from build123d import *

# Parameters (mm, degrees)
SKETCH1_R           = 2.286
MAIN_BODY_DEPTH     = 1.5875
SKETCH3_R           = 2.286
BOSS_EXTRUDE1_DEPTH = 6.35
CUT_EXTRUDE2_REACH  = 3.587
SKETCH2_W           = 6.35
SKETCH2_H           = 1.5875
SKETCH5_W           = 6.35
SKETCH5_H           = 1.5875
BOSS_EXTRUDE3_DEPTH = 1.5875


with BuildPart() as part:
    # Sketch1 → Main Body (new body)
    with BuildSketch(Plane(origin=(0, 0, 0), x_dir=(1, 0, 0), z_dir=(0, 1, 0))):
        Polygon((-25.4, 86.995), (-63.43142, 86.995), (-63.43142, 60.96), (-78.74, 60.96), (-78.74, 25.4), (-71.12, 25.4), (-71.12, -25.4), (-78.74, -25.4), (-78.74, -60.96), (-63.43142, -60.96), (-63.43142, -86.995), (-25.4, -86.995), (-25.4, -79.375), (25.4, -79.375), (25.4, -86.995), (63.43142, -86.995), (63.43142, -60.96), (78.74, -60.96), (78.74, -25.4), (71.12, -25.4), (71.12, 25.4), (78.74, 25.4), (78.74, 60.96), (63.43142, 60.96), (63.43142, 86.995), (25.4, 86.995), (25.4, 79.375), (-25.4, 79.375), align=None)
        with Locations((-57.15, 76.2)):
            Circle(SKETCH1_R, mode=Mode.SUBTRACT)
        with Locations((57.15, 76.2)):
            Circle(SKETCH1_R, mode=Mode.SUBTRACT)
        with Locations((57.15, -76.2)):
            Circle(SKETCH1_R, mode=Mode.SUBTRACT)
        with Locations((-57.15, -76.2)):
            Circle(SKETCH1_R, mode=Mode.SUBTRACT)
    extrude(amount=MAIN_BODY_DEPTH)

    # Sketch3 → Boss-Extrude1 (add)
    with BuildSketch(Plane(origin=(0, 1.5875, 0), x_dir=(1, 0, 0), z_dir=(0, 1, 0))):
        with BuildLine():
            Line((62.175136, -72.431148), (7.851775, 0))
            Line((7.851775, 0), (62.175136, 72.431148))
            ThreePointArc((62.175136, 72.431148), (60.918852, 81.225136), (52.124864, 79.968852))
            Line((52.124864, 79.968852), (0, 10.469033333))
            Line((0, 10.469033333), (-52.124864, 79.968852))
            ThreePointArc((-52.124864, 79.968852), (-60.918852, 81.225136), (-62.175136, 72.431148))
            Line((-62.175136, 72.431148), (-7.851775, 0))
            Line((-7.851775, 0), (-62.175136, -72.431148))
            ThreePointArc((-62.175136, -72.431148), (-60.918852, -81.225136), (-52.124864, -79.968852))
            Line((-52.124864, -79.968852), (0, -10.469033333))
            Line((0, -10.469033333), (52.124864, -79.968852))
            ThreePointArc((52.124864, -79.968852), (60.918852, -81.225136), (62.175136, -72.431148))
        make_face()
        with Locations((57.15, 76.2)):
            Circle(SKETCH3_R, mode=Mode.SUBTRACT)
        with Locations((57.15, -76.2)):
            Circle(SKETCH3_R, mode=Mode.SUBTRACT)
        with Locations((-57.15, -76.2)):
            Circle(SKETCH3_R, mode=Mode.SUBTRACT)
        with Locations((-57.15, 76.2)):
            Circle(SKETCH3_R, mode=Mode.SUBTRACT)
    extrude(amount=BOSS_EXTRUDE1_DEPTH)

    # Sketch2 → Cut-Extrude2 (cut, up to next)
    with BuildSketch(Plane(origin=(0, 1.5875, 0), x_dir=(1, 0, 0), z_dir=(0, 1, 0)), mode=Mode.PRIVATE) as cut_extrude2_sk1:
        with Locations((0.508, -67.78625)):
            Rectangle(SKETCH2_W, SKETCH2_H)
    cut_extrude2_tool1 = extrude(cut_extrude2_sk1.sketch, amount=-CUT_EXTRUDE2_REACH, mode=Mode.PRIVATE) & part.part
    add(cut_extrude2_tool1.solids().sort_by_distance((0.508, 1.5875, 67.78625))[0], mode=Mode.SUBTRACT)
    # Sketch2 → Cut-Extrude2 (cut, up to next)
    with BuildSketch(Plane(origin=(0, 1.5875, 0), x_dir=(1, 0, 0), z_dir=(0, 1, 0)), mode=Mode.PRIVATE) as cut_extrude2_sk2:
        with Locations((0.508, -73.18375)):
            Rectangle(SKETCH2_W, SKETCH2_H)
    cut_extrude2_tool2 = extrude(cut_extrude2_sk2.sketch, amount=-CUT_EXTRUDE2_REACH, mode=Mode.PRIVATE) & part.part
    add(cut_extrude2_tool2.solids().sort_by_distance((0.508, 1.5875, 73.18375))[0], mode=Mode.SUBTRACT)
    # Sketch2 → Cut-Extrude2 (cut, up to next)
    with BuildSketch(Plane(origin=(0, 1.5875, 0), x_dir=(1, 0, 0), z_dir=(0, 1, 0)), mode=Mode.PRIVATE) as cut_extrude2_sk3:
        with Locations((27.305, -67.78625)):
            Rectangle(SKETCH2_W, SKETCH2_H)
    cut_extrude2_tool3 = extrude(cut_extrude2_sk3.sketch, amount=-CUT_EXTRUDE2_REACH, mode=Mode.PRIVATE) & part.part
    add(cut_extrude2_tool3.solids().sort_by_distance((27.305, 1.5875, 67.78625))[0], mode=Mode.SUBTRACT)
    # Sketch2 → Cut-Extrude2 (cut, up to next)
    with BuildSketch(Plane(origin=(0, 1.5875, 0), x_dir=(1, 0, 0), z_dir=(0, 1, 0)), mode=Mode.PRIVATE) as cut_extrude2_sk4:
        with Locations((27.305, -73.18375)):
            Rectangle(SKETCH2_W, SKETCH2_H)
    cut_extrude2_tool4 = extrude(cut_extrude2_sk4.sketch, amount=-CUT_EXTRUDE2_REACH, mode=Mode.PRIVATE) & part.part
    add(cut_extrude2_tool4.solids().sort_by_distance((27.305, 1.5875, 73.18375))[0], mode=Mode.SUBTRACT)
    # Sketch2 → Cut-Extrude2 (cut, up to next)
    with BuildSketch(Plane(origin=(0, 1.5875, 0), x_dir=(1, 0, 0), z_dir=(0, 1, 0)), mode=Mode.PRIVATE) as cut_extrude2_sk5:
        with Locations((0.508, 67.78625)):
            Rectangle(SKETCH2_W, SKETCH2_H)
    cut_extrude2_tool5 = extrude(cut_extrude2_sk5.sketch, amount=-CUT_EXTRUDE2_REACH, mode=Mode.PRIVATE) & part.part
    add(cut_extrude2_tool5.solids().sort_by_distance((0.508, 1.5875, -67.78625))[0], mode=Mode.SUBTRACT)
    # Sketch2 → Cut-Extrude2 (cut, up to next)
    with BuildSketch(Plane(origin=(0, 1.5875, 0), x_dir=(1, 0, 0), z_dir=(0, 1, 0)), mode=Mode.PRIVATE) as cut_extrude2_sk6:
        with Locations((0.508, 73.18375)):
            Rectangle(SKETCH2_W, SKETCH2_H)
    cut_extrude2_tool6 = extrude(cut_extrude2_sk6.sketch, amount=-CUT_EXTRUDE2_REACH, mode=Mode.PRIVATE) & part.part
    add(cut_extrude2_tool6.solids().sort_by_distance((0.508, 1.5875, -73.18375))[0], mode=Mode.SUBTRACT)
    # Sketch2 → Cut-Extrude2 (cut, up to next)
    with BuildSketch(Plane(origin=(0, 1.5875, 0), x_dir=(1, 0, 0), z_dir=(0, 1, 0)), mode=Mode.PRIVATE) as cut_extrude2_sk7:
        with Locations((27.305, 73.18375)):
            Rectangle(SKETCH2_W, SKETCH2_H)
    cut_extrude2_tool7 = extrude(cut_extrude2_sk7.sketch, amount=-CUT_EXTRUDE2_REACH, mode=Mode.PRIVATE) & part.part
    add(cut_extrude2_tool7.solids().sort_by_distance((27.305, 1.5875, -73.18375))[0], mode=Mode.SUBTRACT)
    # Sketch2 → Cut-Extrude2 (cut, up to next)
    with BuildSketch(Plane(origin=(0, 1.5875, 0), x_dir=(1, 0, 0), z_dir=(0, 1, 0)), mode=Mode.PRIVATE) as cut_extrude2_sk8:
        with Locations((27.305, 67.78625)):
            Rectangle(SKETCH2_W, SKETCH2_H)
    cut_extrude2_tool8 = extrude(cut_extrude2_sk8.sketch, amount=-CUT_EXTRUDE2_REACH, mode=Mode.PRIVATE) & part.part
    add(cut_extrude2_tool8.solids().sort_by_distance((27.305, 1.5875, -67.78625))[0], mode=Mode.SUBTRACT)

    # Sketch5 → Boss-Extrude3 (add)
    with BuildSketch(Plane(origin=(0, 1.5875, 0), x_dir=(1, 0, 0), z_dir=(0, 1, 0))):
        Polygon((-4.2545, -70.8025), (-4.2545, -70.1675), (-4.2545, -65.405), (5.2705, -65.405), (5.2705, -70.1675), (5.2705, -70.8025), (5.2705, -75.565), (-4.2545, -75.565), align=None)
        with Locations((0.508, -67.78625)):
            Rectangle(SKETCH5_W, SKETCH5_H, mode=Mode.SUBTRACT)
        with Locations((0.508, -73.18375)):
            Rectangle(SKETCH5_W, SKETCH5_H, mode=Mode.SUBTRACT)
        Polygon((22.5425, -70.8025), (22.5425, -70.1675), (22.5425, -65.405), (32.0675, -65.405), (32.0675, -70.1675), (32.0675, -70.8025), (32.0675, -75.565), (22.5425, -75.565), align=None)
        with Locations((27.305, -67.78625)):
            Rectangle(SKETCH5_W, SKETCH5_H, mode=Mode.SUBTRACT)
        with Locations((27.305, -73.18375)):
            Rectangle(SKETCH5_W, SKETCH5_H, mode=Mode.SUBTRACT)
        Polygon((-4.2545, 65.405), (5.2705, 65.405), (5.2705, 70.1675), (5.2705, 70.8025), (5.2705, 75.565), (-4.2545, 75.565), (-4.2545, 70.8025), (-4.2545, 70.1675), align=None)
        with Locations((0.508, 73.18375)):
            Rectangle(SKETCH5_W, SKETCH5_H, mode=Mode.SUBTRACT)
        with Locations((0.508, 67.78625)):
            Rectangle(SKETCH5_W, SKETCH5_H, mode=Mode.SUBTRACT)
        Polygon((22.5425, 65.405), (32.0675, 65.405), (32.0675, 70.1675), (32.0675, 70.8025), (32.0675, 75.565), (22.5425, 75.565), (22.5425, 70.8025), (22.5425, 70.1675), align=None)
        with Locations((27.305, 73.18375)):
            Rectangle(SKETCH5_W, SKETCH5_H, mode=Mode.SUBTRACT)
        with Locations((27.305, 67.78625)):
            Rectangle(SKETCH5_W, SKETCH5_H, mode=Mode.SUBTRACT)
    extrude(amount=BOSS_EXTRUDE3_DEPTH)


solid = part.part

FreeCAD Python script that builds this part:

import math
import FreeCAD as App
import Part
import Sketcher
Q = App.Units.Quantity


def add_polygon(sketch, points):
    """Adds a closed chain of lines whose ends are joined by coincident constraints."""
    first, n = sketch.GeometryCount, len(points)
    for a, b in zip(points, points[1:] + points[:1]):
        sketch.addGeometry(Part.LineSegment(App.Vector(*a, 0), App.Vector(*b, 0)), False)
    for i in range(n):
        sketch.addConstraint(Sketcher.Constraint("Coincident", first + i, 2, first + (i + 1) % n, 1))

doc = App.newDocument("Part")
params = doc.addObject("Spreadsheet::Sheet", "Params")
for row, (alias, value) in enumerate([
    ("sketch1_diameter", "0.18 in"),
    ("sketch1_width", "2 in"),
    ("sketch1_width2", "0.3 in"),
    ("sketch1_height", "1.4 in"),
    ("sketch1_height2", "1.025 in"),
    ("pad1_length", "0.0625 in"),
    ("sketch2_diameter", "0.18 in"),
    ("pad2_length", "0.25 in"),
    ("sketch3_width", "0.25 in"),
    ("sketch3_height", "0.0625 in"),
    ("sketch4_width", "0.25 in"),
    ("sketch4_height", "0.0625 in"),
    ("sketch5_width", "0.25 in"),
    ("sketch5_height", "0.0625 in"),
    ("sketch6_width", "0.25 in"),
    ("sketch6_height", "0.0625 in"),
    ("sketch7_width", "0.25 in"),
    ("sketch7_height", "0.0625 in"),
    ("sketch8_width", "0.25 in"),
    ("sketch8_height", "0.0625 in"),
    ("sketch9_width", "0.25 in"),
    ("sketch9_height", "0.0625 in"),
    ("sketch10_width", "0.25 in"),
    ("sketch10_height", "0.0625 in"),
    ("sketch11_height", "0.4 in"),
    ("sketch11_width", "0.25 in"),
    ("sketch11_width2", "0.375 in"),
    ("sketch11_height2", "0.0625 in"),
    ("pad3_length", "0.0625 in"),
], start=1):
    params.set(f"A{row}", alias)
    params.set(f"B{row}", "=" + value)
    params.setAlias(f"B{row}", alias)

body = doc.addObject("PartDesign::Body", "Body")

# Sketch on XZ plane
sketch1 = body.newObject("Sketcher::SketchObject", "Sketch")
sketch1.AttachmentSupport = (doc.getObject("XZ_Plane"), [""])
sketch1.MapMode = "FlatFace"
add_polygon(sketch1, [(-25.4, -87), (-63.4, -87), (-63.4, -61), (-78.7, -61), (-78.7, -25.4), (-71.1, -25.4), (-71.1, 25.4), (-78.7, 25.4), (-78.7, 61), (-63.4, 61), (-63.4, 87), (-25.4, 87), (-25.4, 79.4), (25.4, 79.4), (25.4, 87), (63.4, 87), (63.4, 61), (78.7, 61), (78.7, 25.4), (71.1, 25.4), (71.1, -25.4), (78.7, -25.4), (78.7, -61), (63.4, -61), (63.4, -87), (25.4, -87), (25.4, -79.4), (-25.4, -79.4)])  # lines 0-27
sketch1.addGeometry(Part.Circle(App.Vector(-57.1, 76.2, 0), App.Vector(0, 0, 1), 2.3), False)  # 28
sketch1.addGeometry(Part.Circle(App.Vector(57.1, 76.2, 0), App.Vector(0, 0, 1), 2.3), False)  # 29
sketch1.addGeometry(Part.Circle(App.Vector(-57.1, -76.2, 0), App.Vector(0, 0, 1), 2.3), False)  # 30
sketch1.addGeometry(Part.Circle(App.Vector(57.1, -76.2, 0), App.Vector(0, 0, 1), 2.3), False)  # 31
sketch1.addConstraint(Sketcher.Constraint("Horizontal", 0))
sketch1.addConstraint(Sketcher.Constraint("Vertical", 1))
sketch1.addConstraint(Sketcher.Constraint("Horizontal", 2))
sketch1.addConstraint(Sketcher.Constraint("Vertical", 3))
sketch1.addConstraint(Sketcher.Constraint("Horizontal", 4))
sketch1.addConstraint(Sketcher.Constraint("Vertical", 5))
sketch1.addConstraint(Sketcher.Constraint("Horizontal", 6))
sketch1.addConstraint(Sketcher.Constraint("Vertical", 7))
sketch1.addConstraint(Sketcher.Constraint("Horizontal", 8))
sketch1.addConstraint(Sketcher.Constraint("Vertical", 9))
sketch1.addConstraint(Sketcher.Constraint("Horizontal", 10))
sketch1.addConstraint(Sketcher.Constraint("Vertical", 11))
sketch1.addConstraint(Sketcher.Constraint("Horizontal", 12))
sketch1.addConstraint(Sketcher.Constraint("Vertical", 13))
sketch1.addConstraint(Sketcher.Constraint("Horizontal", 14))
sketch1.addConstraint(Sketcher.Constraint("Vertical", 15))
sketch1.addConstraint(Sketcher.Constraint("Horizontal", 16))
sketch1.addConstraint(Sketcher.Constraint("Vertical", 17))
sketch1.addConstraint(Sketcher.Constraint("Horizontal", 18))
sketch1.addConstraint(Sketcher.Constraint("Vertical", 19))
sketch1.addConstraint(Sketcher.Constraint("Horizontal", 20))
sketch1.addConstraint(Sketcher.Constraint("Vertical", 21))
sketch1.addConstraint(Sketcher.Constraint("Horizontal", 22))
sketch1.addConstraint(Sketcher.Constraint("Vertical", 23))
sketch1.addConstraint(Sketcher.Constraint("Horizontal", 24))
sketch1.addConstraint(Sketcher.Constraint("Vertical", 25))
sketch1.addConstraint(Sketcher.Constraint("Horizontal", 26))
sketch1.addConstraint(Sketcher.Constraint("Vertical", 27))
sketch1.addConstraint(Sketcher.Constraint("Equal", 28, 29))
sketch1.addConstraint(Sketcher.Constraint("Equal", 29, 30))
sketch1.addConstraint(Sketcher.Constraint("Equal", 30, 31))
sketch1.addConstraint(Sketcher.Constraint("Symmetric", 29, 3, 30, 3, -1, 1))
sketch1.addConstraint(Sketcher.Constraint("Symmetric", 28, 3, 31, 3, -1, 1))
sketch1.addConstraint(Sketcher.Constraint("Symmetric", 0, 2, 14, 2, -1, 1))
sketch1.addConstraint(Sketcher.Constraint("Symmetric", 2, 2, 16, 2, -1, 1))
sketch1.addConstraint(Sketcher.Constraint("Symmetric", 4, 2, 18, 2, -1, 1))
sketch1.addConstraint(Sketcher.Constraint("Symmetric", 6, 2, 20, 2, -1, 1))
sketch1.addConstraint(Sketcher.Constraint("Symmetric", 8, 2, 22, 2, -1, 1))
sketch1.addConstraint(Sketcher.Constraint("Symmetric", 10, 2, 24, 2, -1, 1))
sketch1.addConstraint(Sketcher.Constraint("Symmetric", 12, 2, 26, 2, -1, 1))
sketch1.addConstraint(Sketcher.Constraint("Symmetric", 28, 3, 29, 3, -2))
sketch1.addConstraint(Sketcher.Constraint("Symmetric", 10, 2, 13, 2, -2))
sketch1.addConstraint(Sketcher.Constraint("Symmetric", 8, 2, 15, 2, -2))
sketch1.addConstraint(Sketcher.Constraint("Symmetric", 6, 2, 17, 2, -2))
sketch1.addConstraint(Sketcher.Constraint("Equal", 26, 5))
sketch1.addConstraint(Sketcher.Constraint("Equal", 20, 11))
sketch1.addConstraint(Sketcher.Constraint("Diameter", 28, Q("0.18 in")))
sketch1.addConstraint(Sketcher.Constraint("DistanceX", 12, 1, 12, 2, Q("2 in")))
sketch1.addConstraint(Sketcher.Constraint("DistanceX", 4, 1, 4, 2, Q("0.3 in")))
sketch1.addConstraint(Sketcher.Constraint("DistanceY", 3, 1, 3, 2, Q("1.4 in")))
sketch1.addConstraint(Sketcher.Constraint("DistanceY", -1, 1, 28, 3, Q("3 in")))
sketch1.addConstraint(Sketcher.Constraint("DistanceX", 2, 2, -1, 1, Q("3.1 in")))
sketch1.addConstraint(Sketcher.Constraint("DistanceX", 28, 3, 29, 3, Q("4.5 in")))
sketch1.addConstraint(Sketcher.Constraint("DistanceY", 1, 1, 1, 2, Q("1.025 in")))
sketch1.addConstraint(Sketcher.Constraint("DistanceX", 0, 2, 0, 1, Q("1.4973 in")))
sketch1.setExpression("Constraints[74]", "Params.sketch1_diameter")
sketch1.setExpression("Constraints[75]", "Params.sketch1_width")
sketch1.setExpression("Constraints[76]", "Params.sketch1_width2")
sketch1.setExpression("Constraints[77]", "Params.sketch1_height")
sketch1.setExpression("Constraints[81]", "Params.sketch1_height2")
pad1 = body.newObject("PartDesign::Pad", "Pad")
pad1.Profile = sketch1
pad1.setExpression("Length", "Params.pad1_length")
pad1.Reversed = True

# Sketch on XZ plane
sketch2 = body.newObject("Sketcher::SketchObject", "Sketch001")
sketch2.AttachmentSupport = (doc.getObject("XZ_Plane"), [""])
sketch2.MapMode = "FlatFace"
sketch2.AttachmentOffset = App.Placement(App.Vector(0, 0, -0.0625 * 25.4), App.Rotation())
sketch2.addGeometry(Part.LineSegment(App.Vector(62.2, 72.4, 0), App.Vector(7.9, 0, 0)), False)
sketch2.addGeometry(Part.LineSegment(App.Vector(7.9, 0, 0), App.Vector(62.2, -72.4, 0)), False)
sketch2.addGeometry(Part.ArcOfCircle(Part.Circle(App.Vector(57.1, -76.2, 0), App.Vector(0, 0, 1), 6.3), math.radians(-143), math.radians(37)), False)
sketch2.addGeometry(Part.LineSegment(App.Vector(52.1, -80, 0), App.Vector(0, -10.5, 0)), False)
sketch2.addGeometry(Part.LineSegment(App.Vector(0, -10.5, 0), App.Vector(-52.1, -80, 0)), False)
sketch2.addGeometry(Part.ArcOfCircle(Part.Circle(App.Vector(-57.1, -76.2, 0), App.Vector(0, 0, 1), 6.3), math.radians(143), math.radians(323)), False)
sketch2.addGeometry(Part.LineSegment(App.Vector(-62.2, -72.4, 0), App.Vector(-7.9, 0, 0)), False)
sketch2.addGeometry(Part.LineSegment(App.Vector(-7.9, 0, 0), App.Vector(-62.2, 72.4, 0)), False)
sketch2.addGeometry(Part.ArcOfCircle(Part.Circle(App.Vector(-57.1, 76.2, 0), App.Vector(0, 0, 1), 6.3), math.radians(37), math.radians(217)), False)
sketch2.addGeometry(Part.LineSegment(App.Vector(-52.1, 80, 0), App.Vector(0, 10.5, 0)), False)
sketch2.addGeometry(Part.LineSegment(App.Vector(0, 10.5, 0), App.Vector(52.1, 80, 0)), False)
sketch2.addGeometry(Part.ArcOfCircle(Part.Circle(App.Vector(57.1, 76.2, 0), App.Vector(0, 0, 1), 6.3), math.radians(-37), math.radians(143)), False)
sketch2.addGeometry(Part.Circle(App.Vector(-57.1, 76.2, 0), App.Vector(0, 0, 1), 2.3), False)
sketch2.addGeometry(Part.Circle(App.Vector(57.1, 76.2, 0), App.Vector(0, 0, 1), 2.3), False)
sketch2.addGeometry(Part.Circle(App.Vector(-57.1, -76.2, 0), App.Vector(0, 0, 1), 2.3), False)
sketch2.addGeometry(Part.Circle(App.Vector(57.1, -76.2, 0), App.Vector(0, 0, 1), 2.3), False)
sketch2.addConstraint(Sketcher.Constraint("Coincident", 0, 2, 1, 1))
sketch2.addConstraint(Sketcher.Constraint("Tangent", 1, 2, 2, 2))
sketch2.addConstraint(Sketcher.Constraint("Tangent", 2, 1, 3, 1))
sketch2.addConstraint(Sketcher.Constraint("Coincident", 3, 2, 4, 1))
sketch2.addConstraint(Sketcher.Constraint("Tangent", 4, 2, 5, 2))
sketch2.addConstraint(Sketcher.Constraint("Tangent", 5, 1, 6, 1))
sketch2.addConstraint(Sketcher.Constraint("Coincident", 6, 2, 7, 1))
sketch2.addConstraint(Sketcher.Constraint("Tangent", 7, 2, 8, 2))
sketch2.addConstraint(Sketcher.Constraint("Tangent", 8, 1, 9, 1))
sketch2.addConstraint(Sketcher.Constraint("Coincident", 9, 2, 10, 1))
sketch2.addConstraint(Sketcher.Constraint("Tangent", 10, 2, 11, 2))
sketch2.addConstraint(Sketcher.Constraint("Tangent", 11, 1, 0, 1))
sketch2.addConstraint(Sketcher.Constraint("Coincident", 12, 3, 8, 3))
sketch2.addConstraint(Sketcher.Constraint("Coincident", 13, 3, 11, 3))
sketch2.addConstraint(Sketcher.Constraint("Coincident", 14, 3, 5, 3))
sketch2.addConstraint(Sketcher.Constraint("Coincident", 15, 3, 2, 3))
sketch2.addConstraint(Sketcher.Constraint("Equal", 2, 5))
sketch2.addConstraint(Sketcher.Constraint("Equal", 5, 8))
sketch2.addConstraint(Sketcher.Constraint("Equal", 8, 11))
sketch2.addConstraint(Sketcher.Constraint("Equal", 12, 13))
sketch2.addConstraint(Sketcher.Constraint("Equal", 13, 14))
sketch2.addConstraint(Sketcher.Constraint("Equal", 14, 15))
sketch2.addConstraint(Sketcher.Constraint("Symmetric", 2, 3, 8, 3, -1, 1))
sketch2.addConstraint(Sketcher.Constraint("Symmetric", 5, 3, 11, 3, -1, 1))
sketch2.addConstraint(Sketcher.Constraint("Symmetric", 0, 2, 6, 2, -1, 1))
sketch2.addConstraint(Sketcher.Constraint("Symmetric", 3, 2, 9, 2, -1, 1))
sketch2.addConstraint(Sketcher.Constraint("Symmetric", 2, 3, 5, 3, -2))
sketch2.addConstraint(Sketcher.Constraint("PointOnObject", 0, 2, -1))
sketch2.addConstraint(Sketcher.Constraint("PointOnObject", 3, 2, -2))
sketch2.addConstraint(Sketcher.Constraint("Parallel", 1, 3))
sketch2.addConstraint(Sketcher.Constraint("Diameter", 12, Q("0.18 in")))
sketch2.addConstraint(Sketcher.Constraint("DistanceY", 2, 3, -1, 1, Q("3 in")))
sketch2.addConstraint(Sketcher.Constraint("Radius", 2, Q("0.2473 in")))
sketch2.addConstraint(Sketcher.Constraint("DistanceX", 5, 3, 2, 3, Q("4.5 in")))
sketch2.addConstraint(Sketcher.Constraint("DistanceY", 2, 1, -1, 1, 79.968852))
sketch2.setExpression("Constraints[30]", "Params.sketch2_diameter")
pad2 = body.newObject("PartDesign::Pad", "Pad001")
pad2.Profile = sketch2
pad2.setExpression("Length", "Params.pad2_length")
pad2.Reversed = True

# Sketch on XZ plane
sketch3 = body.newObject("Sketcher::SketchObject", "Sketch002")
sketch3.AttachmentSupport = (doc.getObject("XZ_Plane"), [""])
sketch3.MapMode = "FlatFace"
sketch3.AttachmentOffset = App.Placement(App.Vector(0, 0, -0.0625 * 25.4), App.Rotation())
add_polygon(sketch3, [(-2.7, 67), (-2.7, 68.6), (3.7, 68.6), (3.7, 67)])  # lines 0-3
sketch3.addConstraint(Sketcher.Constraint("Vertical", 0))
sketch3.addConstraint(Sketcher.Constraint("Horizontal", 1))
sketch3.addConstraint(Sketcher.Constraint("Vertical", 2))
sketch3.addConstraint(Sketcher.Constraint("Horizontal", 3))
sketch3.addConstraint(Sketcher.Constraint("DistanceX", 1, 1, 1, 2, Q("0.25 in")))
sketch3.addConstraint(Sketcher.Constraint("DistanceY", -1, 1, 0, 2, Q("2.7 in")))
sketch3.addConstraint(Sketcher.Constraint("DistanceY", 0, 1, 0, 2, Q("0.0625 in")))
sketch3.addConstraint(Sketcher.Constraint("DistanceX", 0, 2, -1, 1, Q("0.105 in")))
sketch3.setExpression("Constraints[8]", "Params.sketch3_width")
sketch3.setExpression("Constraints[10]", "Params.sketch3_height")
pocket1 = body.newObject("PartDesign::Pocket", "Pocket")
pocket1.Profile = sketch3
pocket1.Type = "UpToFirst"
pocket1.Reversed = True

# Sketch on XZ plane
sketch4 = body.newObject("Sketcher::SketchObject", "Sketch003")
sketch4.AttachmentSupport = (doc.getObject("XZ_Plane"), [""])
sketch4.MapMode = "FlatFace"
sketch4.AttachmentOffset = App.Placement(App.Vector(0, 0, -0.0625 * 25.4), App.Rotation())
add_polygon(sketch4, [(-2.7, 72.4), (-2.7, 74), (3.7, 74), (3.7, 72.4)])  # lines 0-3
sketch4.addConstraint(Sketcher.Constraint("Vertical", 0))
sketch4.addConstraint(Sketcher.Constraint("Horizontal", 1))
sketch4.addConstraint(Sketcher.Constraint("Vertical", 2))
sketch4.addConstraint(Sketcher.Constraint("Horizontal", 3))
sketch4.addConstraint(Sketcher.Constraint("DistanceX", 1, 1, 1, 2, Q("0.25 in")))
sketch4.addConstraint(Sketcher.Constraint("DistanceY", 0, 1, 0, 2, Q("0.0625 in")))
sketch4.addConstraint(Sketcher.Constraint("DistanceY", -1, 1, 2, 2, Q("2.85 in")))
sketch4.addConstraint(Sketcher.Constraint("DistanceX", 0, 2, -1, 1, Q("0.105 in")))
sketch4.setExpression("Constraints[8]", "Params.sketch4_width")
sketch4.setExpression("Constraints[9]", "Params.sketch4_height")
pocket2 = body.newObject("PartDesign::Pocket", "Pocket001")
pocket2.Profile = sketch4
pocket2.Type = "UpToFirst"
pocket2.Reversed = True

# Sketch on XZ plane
sketch5 = body.newObject("Sketcher::SketchObject", "Sketch004")
sketch5.AttachmentSupport = (doc.getObject("XZ_Plane"), [""])
sketch5.MapMode = "FlatFace"
sketch5.AttachmentOffset = App.Placement(App.Vector(0, 0, -0.0625 * 25.4), App.Rotation())
add_polygon(sketch5, [(24.1, 67), (24.1, 68.6), (30.5, 68.6), (30.5, 67)])  # lines 0-3
sketch5.addConstraint(Sketcher.Constraint("Vertical", 0))
sketch5.addConstraint(Sketcher.Constraint("Horizontal", 1))
sketch5.addConstraint(Sketcher.Constraint("Vertical", 2))
sketch5.addConstraint(Sketcher.Constraint("Horizontal", 3))
sketch5.addConstraint(Sketcher.Constraint("DistanceX", 1, 1, 1, 2, Q("0.25 in")))
sketch5.addConstraint(Sketcher.Constraint("DistanceY", -1, 1, 0, 2, Q("2.7 in")))
sketch5.addConstraint(Sketcher.Constraint("DistanceX", -1, 1, 1, 2, Q("1.2 in")))
sketch5.addConstraint(Sketcher.Constraint("DistanceY", 0, 1, 0, 2, Q("0.0625 in")))
sketch5.setExpression("Constraints[8]", "Params.sketch5_width")
sketch5.setExpression("Constraints[11]", "Params.sketch5_height")
pocket3 = body.newObject("PartDesign::Pocket", "Pocket002")
pocket3.Profile = sketch5
pocket3.Type = "UpToFirst"
pocket3.Reversed = True

# Sketch on XZ plane
sketch6 = body.newObject("Sketcher::SketchObject", "Sketch005")
sketch6.AttachmentSupport = (doc.getObject("XZ_Plane"), [""])
sketch6.MapMode = "FlatFace"
sketch6.AttachmentOffset = App.Placement(App.Vector(0, 0, -0.0625 * 25.4), App.Rotation())
add_polygon(sketch6, [(24.1, 72.4), (24.1, 74), (30.5, 74), (30.5, 72.4)])  # lines 0-3
sketch6.addConstraint(Sketcher.Constraint("Vertical", 0))
sketch6.addConstraint(Sketcher.Constraint("Horizontal", 1))
sketch6.addConstraint(Sketcher.Constraint("Vertical", 2))
sketch6.addConstraint(Sketcher.Constraint("Horizontal", 3))
sketch6.addConstraint(Sketcher.Constraint("DistanceX", 1, 1, 1, 2, Q("0.25 in")))
sketch6.addConstraint(Sketcher.Constraint("DistanceX", -1, 1, 1, 2, Q("1.2 in")))
sketch6.addConstraint(Sketcher.Constraint("DistanceY", 0, 1, 0, 2, Q("0.0625 in")))
sketch6.addConstraint(Sketcher.Constraint("DistanceY", -1, 1, 2, 2, Q("2.85 in")))
sketch6.setExpression("Constraints[8]", "Params.sketch6_width")
sketch6.setExpression("Constraints[10]", "Params.sketch6_height")
pocket4 = body.newObject("PartDesign::Pocket", "Pocket003")
pocket4.Profile = sketch6
pocket4.Type = "UpToFirst"
pocket4.Reversed = True

# Sketch on XZ plane
sketch7 = body.newObject("Sketcher::SketchObject", "Sketch006")
sketch7.AttachmentSupport = (doc.getObject("XZ_Plane"), [""])
sketch7.MapMode = "FlatFace"
sketch7.AttachmentOffset = App.Placement(App.Vector(0, 0, -0.0625 * 25.4), App.Rotation())
add_polygon(sketch7, [(-2.7, -68.6), (-2.7, -67), (3.7, -67), (3.7, -68.6)])  # lines 0-3
sketch7.addConstraint(Sketcher.Constraint("Vertical", 0))
sketch7.addConstraint(Sketcher.Constraint("Horizontal", 1))
sketch7.addConstraint(Sketcher.Constraint("Vertical", 2))
sketch7.addConstraint(Sketcher.Constraint("Horizontal", 3))
sketch7.addConstraint(Sketcher.Constraint("DistanceX", 1, 1, 1, 2, Q("0.25 in")))
sketch7.addConstraint(Sketcher.Constraint("DistanceY", 2, 2, -1, 1, Q("2.7 in")))
sketch7.addConstraint(Sketcher.Constraint("DistanceY", 0, 1, 0, 2, Q("0.0625 in")))
sketch7.addConstraint(Sketcher.Constraint("DistanceX", 0, 2, -1, 1, Q("0.105 in")))
sketch7.setExpression("Constraints[8]", "Params.sketch7_width")
sketch7.setExpression("Constraints[10]", "Params.sketch7_height")
pocket5 = body.newObject("PartDesign::Pocket", "Pocket004")
pocket5.Profile = sketch7
pocket5.Type = "UpToFirst"
pocket5.Reversed = True

# Sketch on XZ plane
sketch8 = body.newObject("Sketcher::SketchObject", "Sketch007")
sketch8.AttachmentSupport = (doc.getObject("XZ_Plane"), [""])
sketch8.MapMode = "FlatFace"
sketch8.AttachmentOffset = App.Placement(App.Vector(0, 0, -0.0625 * 25.4), App.Rotation())
add_polygon(sketch8, [(-2.7, -74), (-2.7, -72.4), (3.7, -72.4), (3.7, -74)])  # lines 0-3
sketch8.addConstraint(Sketcher.Constraint("Vertical", 0))
sketch8.addConstraint(Sketcher.Constraint("Horizontal", 1))
sketch8.addConstraint(Sketcher.Constraint("Vertical", 2))
sketch8.addConstraint(Sketcher.Constraint("Horizontal", 3))
sketch8.addConstraint(Sketcher.Constraint("DistanceX", 1, 1, 1, 2, Q("0.25 in")))
sketch8.addConstraint(Sketcher.Constraint("DistanceY", 0, 1, 0, 2, Q("0.0625 in")))
sketch8.addConstraint(Sketcher.Constraint("DistanceY", 0, 2, -1, 1, Q("2.85 in")))
sketch8.addConstraint(Sketcher.Constraint("DistanceX", 0, 2, -1, 1, Q("0.105 in")))
sketch8.setExpression("Constraints[8]", "Params.sketch8_width")
sketch8.setExpression("Constraints[9]", "Params.sketch8_height")
pocket6 = body.newObject("PartDesign::Pocket", "Pocket005")
pocket6.Profile = sketch8
pocket6.Type = "UpToFirst"
pocket6.Reversed = True

# Sketch on XZ plane
sketch9 = body.newObject("Sketcher::SketchObject", "Sketch008")
sketch9.AttachmentSupport = (doc.getObject("XZ_Plane"), [""])
sketch9.MapMode = "FlatFace"
sketch9.AttachmentOffset = App.Placement(App.Vector(0, 0, -0.0625 * 25.4), App.Rotation())
add_polygon(sketch9, [(24.1, -74), (24.1, -72.4), (30.5, -72.4), (30.5, -74)])  # lines 0-3
sketch9.addConstraint(Sketcher.Constraint("Vertical", 0))
sketch9.addConstraint(Sketcher.Constraint("Horizontal", 1))
sketch9.addConstraint(Sketcher.Constraint("Vertical", 2))
sketch9.addConstraint(Sketcher.Constraint("Horizontal", 3))
sketch9.addConstraint(Sketcher.Constraint("DistanceX", 1, 1, 1, 2, Q("0.25 in")))
sketch9.addConstraint(Sketcher.Constraint("DistanceX", -1, 1, 1, 2, Q("1.2 in")))
sketch9.addConstraint(Sketcher.Constraint("DistanceY", 0, 1, 0, 2, Q("0.0625 in")))
sketch9.addConstraint(Sketcher.Constraint("DistanceY", 0, 2, -1, 1, Q("2.85 in")))
sketch9.setExpression("Constraints[8]", "Params.sketch9_width")
sketch9.setExpression("Constraints[10]", "Params.sketch9_height")
pocket7 = body.newObject("PartDesign::Pocket", "Pocket006")
pocket7.Profile = sketch9
pocket7.Type = "UpToFirst"
pocket7.Reversed = True

# Sketch on XZ plane
sketch10 = body.newObject("Sketcher::SketchObject", "Sketch009")
sketch10.AttachmentSupport = (doc.getObject("XZ_Plane"), [""])
sketch10.MapMode = "FlatFace"
sketch10.AttachmentOffset = App.Placement(App.Vector(0, 0, -0.0625 * 25.4), App.Rotation())
add_polygon(sketch10, [(24.1, -68.6), (24.1, -67), (30.5, -67), (30.5, -68.6)])  # lines 0-3
sketch10.addConstraint(Sketcher.Constraint("Vertical", 0))
sketch10.addConstraint(Sketcher.Constraint("Horizontal", 1))
sketch10.addConstraint(Sketcher.Constraint("Vertical", 2))
sketch10.addConstraint(Sketcher.Constraint("Horizontal", 3))
sketch10.addConstraint(Sketcher.Constraint("DistanceX", 1, 1, 1, 2, Q("0.25 in")))
sketch10.addConstraint(Sketcher.Constraint("DistanceX", -1, 1, 1, 2, Q("1.2 in")))
sketch10.addConstraint(Sketcher.Constraint("DistanceY", 2, 2, -1, 1, Q("2.7 in")))
sketch10.addConstraint(Sketcher.Constraint("DistanceY", 0, 1, 0, 2, Q("0.0625 in")))
sketch10.setExpression("Constraints[8]", "Params.sketch10_width")
sketch10.setExpression("Constraints[11]", "Params.sketch10_height")
pocket8 = body.newObject("PartDesign::Pocket", "Pocket007")
pocket8.Profile = sketch10
pocket8.Type = "UpToFirst"
pocket8.Reversed = True

# Sketch on XZ plane
sketch11 = body.newObject("Sketcher::SketchObject", "Sketch010")
sketch11.AttachmentSupport = (doc.getObject("XZ_Plane"), [""])
sketch11.MapMode = "FlatFace"
sketch11.AttachmentOffset = App.Placement(App.Vector(0, 0, -0.0625 * 25.4), App.Rotation())
add_polygon(sketch11, [(-4.3, 65.4), (-4.3, 75.6), (5.3, 75.6), (5.3, 65.4)])  # lines 0-3
add_polygon(sketch11, [(-2.7, 74), (-2.7, 72.4), (3.7, 72.4), (3.7, 74)])  # lines 4-7
add_polygon(sketch11, [(-2.7, 68.6), (-2.7, 67), (3.7, 67), (3.7, 68.6)])  # lines 8-11
add_polygon(sketch11, [(22.5, 65.4), (22.5, 75.6), (32.1, 75.6), (32.1, 65.4)])  # lines 12-15
add_polygon(sketch11, [(24.1, 74), (24.1, 72.4), (30.5, 72.4), (30.5, 74)])  # lines 16-19
add_polygon(sketch11, [(24.1, 68.6), (24.1, 67), (30.5, 67), (30.5, 68.6)])  # lines 20-23
add_polygon(sketch11, [(-4.3, -65.4), (5.3, -65.4), (5.3, -75.6), (-4.3, -75.6)])  # lines 24-27
add_polygon(sketch11, [(3.7, -67), (-2.7, -67), (-2.7, -68.6), (3.7, -68.6)])  # lines 28-31
add_polygon(sketch11, [(3.7, -72.4), (-2.7, -72.4), (-2.7, -74), (3.7, -74)])  # lines 32-35
add_polygon(sketch11, [(22.5, -65.4), (32.1, -65.4), (32.1, -75.6), (22.5, -75.6)])  # lines 36-39
add_polygon(sketch11, [(30.5, -67), (24.1, -67), (24.1, -68.6), (30.5, -68.6)])  # lines 40-43
add_polygon(sketch11, [(30.5, -72.4), (24.1, -72.4), (24.1, -74), (30.5, -74)])  # lines 44-47
sketch11.addConstraint(Sketcher.Constraint("Vertical", 0))
sketch11.addConstraint(Sketcher.Constraint("Horizontal", 1))
sketch11.addConstraint(Sketcher.Constraint("Vertical", 2))
sketch11.addConstraint(Sketcher.Constraint("Horizontal", 3))
sketch11.addConstraint(Sketcher.Constraint("Vertical", 4))
sketch11.addConstraint(Sketcher.Constraint("Horizontal", 5))
sketch11.addConstraint(Sketcher.Constraint("Vertical", 6))
sketch11.addConstraint(Sketcher.Constraint("Horizontal", 7))
sketch11.addConstraint(Sketcher.Constraint("Vertical", 8))
sketch11.addConstraint(Sketcher.Constraint("Horizontal", 9))
sketch11.addConstraint(Sketcher.Constraint("Vertical", 10))
sketch11.addConstraint(Sketcher.Constraint("Horizontal", 11))
sketch11.addConstraint(Sketcher.Constraint("Vertical", 12))
sketch11.addConstraint(Sketcher.Constraint("Horizontal", 13))
sketch11.addConstraint(Sketcher.Constraint("Vertical", 14))
sketch11.addConstraint(Sketcher.Constraint("Horizontal", 15))
sketch11.addConstraint(Sketcher.Constraint("Vertical", 16))
sketch11.addConstraint(Sketcher.Constraint("Horizontal", 17))
sketch11.addConstraint(Sketcher.Constraint("Vertical", 18))
sketch11.addConstraint(Sketcher.Constraint("Horizontal", 19))
sketch11.addConstraint(Sketcher.Constraint("Vertical", 20))
sketch11.addConstraint(Sketcher.Constraint("Horizontal", 21))
sketch11.addConstraint(Sketcher.Constraint("Vertical", 22))
sketch11.addConstraint(Sketcher.Constraint("Horizontal", 23))
sketch11.addConstraint(Sketcher.Constraint("Horizontal", 24))
sketch11.addConstraint(Sketcher.Constraint("Vertical", 25))
sketch11.addConstraint(Sketcher.Constraint("Horizontal", 26))
sketch11.addConstraint(Sketcher.Constraint("Vertical", 27))
sketch11.addConstraint(Sketcher.Constraint("Horizontal", 28))
sketch11.addConstraint(Sketcher.Constraint("Vertical", 29))
sketch11.addConstraint(Sketcher.Constraint("Horizontal", 30))
sketch11.addConstraint(Sketcher.Constraint("Vertical", 31))
sketch11.addConstraint(Sketcher.Constraint("Horizontal", 32))
sketch11.addConstraint(Sketcher.Constraint("Vertical", 33))
sketch11.addConstraint(Sketcher.Constraint("Horizontal", 34))
sketch11.addConstraint(Sketcher.Constraint("Vertical", 35))
sketch11.addConstraint(Sketcher.Constraint("Horizontal", 36))
sketch11.addConstraint(Sketcher.Constraint("Vertical", 37))
sketch11.addConstraint(Sketcher.Constraint("Horizontal", 38))
sketch11.addConstraint(Sketcher.Constraint("Vertical", 39))
sketch11.addConstraint(Sketcher.Constraint("Horizontal", 40))
sketch11.addConstraint(Sketcher.Constraint("Vertical", 41))
sketch11.addConstraint(Sketcher.Constraint("Horizontal", 42))
sketch11.addConstraint(Sketcher.Constraint("Vertical", 43))
sketch11.addConstraint(Sketcher.Constraint("Horizontal", 44))
sketch11.addConstraint(Sketcher.Constraint("Vertical", 45))
sketch11.addConstraint(Sketcher.Constraint("Horizontal", 46))
sketch11.addConstraint(Sketcher.Constraint("Vertical", 47))
sketch11.addConstraint(Sketcher.Constraint("Symmetric", 2, 2, 24, 2, -1))
sketch11.addConstraint(Sketcher.Constraint("Symmetric", 0, 2, 26, 2, -1))
sketch11.addConstraint(Sketcher.Constraint("Symmetric", 8, 2, 28, 2, -1))
sketch11.addConstraint(Sketcher.Constraint("Symmetric", 10, 2, 30, 2, -1))
sketch11.addConstraint(Sketcher.Constraint("Symmetric", 4, 2, 32, 2, -1))
sketch11.addConstraint(Sketcher.Constraint("Symmetric", 6, 2, 34, 2, -1))
sketch11.addConstraint(Sketcher.Constraint("Symmetric", 14, 2, 36, 2, -1))
sketch11.addConstraint(Sketcher.Constraint("Symmetric", 12, 2, 38, 2, -1))
sketch11.addConstraint(Sketcher.Constraint("Symmetric", 20, 2, 40, 2, -1))
sketch11.addConstraint(Sketcher.Constraint("Symmetric", 22, 2, 42, 2, -1))
sketch11.addConstraint(Sketcher.Constraint("Symmetric", 16, 2, 44, 2, -1))
sketch11.addConstraint(Sketcher.Constraint("Symmetric", 18, 2, 46, 2, -1))
sketch11.addConstraint(Sketcher.Constraint("Horizontal", 1, 2, 12, 2))
sketch11.addConstraint(Sketcher.Constraint("Horizontal", 3, 2, 14, 2))
sketch11.addConstraint(Sketcher.Constraint("Horizontal", 5, 2, 16, 2))
sketch11.addConstraint(Sketcher.Constraint("Horizontal", 7, 2, 18, 2))
sketch11.addConstraint(Sketcher.Constraint("Horizontal", 9, 2, 20, 2))
sketch11.addConstraint(Sketcher.Constraint("Horizontal", 11, 2, 22, 2))
sketch11.addConstraint(Sketcher.Constraint("Vertical", 7, 2, 8, 2))
sketch11.addConstraint(Sketcher.Constraint("Vertical", 6, 2, 9, 2))
sketch11.addConstraint(Sketcher.Constraint("Vertical", 19, 2, 20, 2))
sketch11.addConstraint(Sketcher.Constraint("Vertical", 18, 2, 21, 2))
sketch11.addConstraint(Sketcher.Constraint("Equal", 3, 13))
sketch11.addConstraint(Sketcher.Constraint("Equal", 11, 17))
sketch11.addConstraint(Sketcher.Constraint("Equal", 6, 8))
sketch11.addConstraint(Sketcher.Constraint("DistanceY", 0, 1, 0, 2, Q("0.4 in")))
sketch11.addConstraint(Sketcher.Constraint("DistanceX", 5, 1, 5, 2, Q("0.25 in")))
sketch11.addConstraint(Sketcher.Constraint("DistanceY", -1, 1, 10, 2, Q("2.7 in")))
sketch11.addConstraint(Sketcher.Constraint("DistanceX", -1, 1, 17, 2, Q("1.2 in")))
sketch11.addConstraint(Sketcher.Constraint("DistanceX", 1, 1, 1, 2, Q("0.375 in")))
sketch11.addConstraint(Sketcher.Constraint("DistanceY", 4, 2, 4, 1, Q("0.0625 in")))
sketch11.addConstraint(Sketcher.Constraint("DistanceY", -1, 1, 4, 2, Q("2.85 in")))
sketch11.addConstraint(Sketcher.Constraint("DistanceX", 1, 2, 12, 2, Q("0.68 in")))
sketch11.addConstraint(Sketcher.Constraint("DistanceY", 24, 2, 2, 2, Q("5.15 in")))
sketch11.addConstraint(Sketcher.Constraint("DistanceX", 4, 2, -1, 1, Q("0.105 in")))
sketch11.addConstraint(Sketcher.Constraint("DistanceX", 0, 2, 4, 2, Q("0.0625 in")))
sketch11.setExpression("Constraints[121]", "Params.sketch11_height")
sketch11.setExpression("Constraints[122]", "Params.sketch11_width")
sketch11.setExpression("Constraints[125]", "Params.sketch11_width2")
sketch11.setExpression("Constraints[126]", "Params.sketch11_height2")
pad3 = body.newObject("PartDesign::Pad", "Pad002")
pad3.Profile = sketch11
pad3.setExpression("Length", "Params.pad3_length")
pad3.Reversed = True

doc.recompute()
